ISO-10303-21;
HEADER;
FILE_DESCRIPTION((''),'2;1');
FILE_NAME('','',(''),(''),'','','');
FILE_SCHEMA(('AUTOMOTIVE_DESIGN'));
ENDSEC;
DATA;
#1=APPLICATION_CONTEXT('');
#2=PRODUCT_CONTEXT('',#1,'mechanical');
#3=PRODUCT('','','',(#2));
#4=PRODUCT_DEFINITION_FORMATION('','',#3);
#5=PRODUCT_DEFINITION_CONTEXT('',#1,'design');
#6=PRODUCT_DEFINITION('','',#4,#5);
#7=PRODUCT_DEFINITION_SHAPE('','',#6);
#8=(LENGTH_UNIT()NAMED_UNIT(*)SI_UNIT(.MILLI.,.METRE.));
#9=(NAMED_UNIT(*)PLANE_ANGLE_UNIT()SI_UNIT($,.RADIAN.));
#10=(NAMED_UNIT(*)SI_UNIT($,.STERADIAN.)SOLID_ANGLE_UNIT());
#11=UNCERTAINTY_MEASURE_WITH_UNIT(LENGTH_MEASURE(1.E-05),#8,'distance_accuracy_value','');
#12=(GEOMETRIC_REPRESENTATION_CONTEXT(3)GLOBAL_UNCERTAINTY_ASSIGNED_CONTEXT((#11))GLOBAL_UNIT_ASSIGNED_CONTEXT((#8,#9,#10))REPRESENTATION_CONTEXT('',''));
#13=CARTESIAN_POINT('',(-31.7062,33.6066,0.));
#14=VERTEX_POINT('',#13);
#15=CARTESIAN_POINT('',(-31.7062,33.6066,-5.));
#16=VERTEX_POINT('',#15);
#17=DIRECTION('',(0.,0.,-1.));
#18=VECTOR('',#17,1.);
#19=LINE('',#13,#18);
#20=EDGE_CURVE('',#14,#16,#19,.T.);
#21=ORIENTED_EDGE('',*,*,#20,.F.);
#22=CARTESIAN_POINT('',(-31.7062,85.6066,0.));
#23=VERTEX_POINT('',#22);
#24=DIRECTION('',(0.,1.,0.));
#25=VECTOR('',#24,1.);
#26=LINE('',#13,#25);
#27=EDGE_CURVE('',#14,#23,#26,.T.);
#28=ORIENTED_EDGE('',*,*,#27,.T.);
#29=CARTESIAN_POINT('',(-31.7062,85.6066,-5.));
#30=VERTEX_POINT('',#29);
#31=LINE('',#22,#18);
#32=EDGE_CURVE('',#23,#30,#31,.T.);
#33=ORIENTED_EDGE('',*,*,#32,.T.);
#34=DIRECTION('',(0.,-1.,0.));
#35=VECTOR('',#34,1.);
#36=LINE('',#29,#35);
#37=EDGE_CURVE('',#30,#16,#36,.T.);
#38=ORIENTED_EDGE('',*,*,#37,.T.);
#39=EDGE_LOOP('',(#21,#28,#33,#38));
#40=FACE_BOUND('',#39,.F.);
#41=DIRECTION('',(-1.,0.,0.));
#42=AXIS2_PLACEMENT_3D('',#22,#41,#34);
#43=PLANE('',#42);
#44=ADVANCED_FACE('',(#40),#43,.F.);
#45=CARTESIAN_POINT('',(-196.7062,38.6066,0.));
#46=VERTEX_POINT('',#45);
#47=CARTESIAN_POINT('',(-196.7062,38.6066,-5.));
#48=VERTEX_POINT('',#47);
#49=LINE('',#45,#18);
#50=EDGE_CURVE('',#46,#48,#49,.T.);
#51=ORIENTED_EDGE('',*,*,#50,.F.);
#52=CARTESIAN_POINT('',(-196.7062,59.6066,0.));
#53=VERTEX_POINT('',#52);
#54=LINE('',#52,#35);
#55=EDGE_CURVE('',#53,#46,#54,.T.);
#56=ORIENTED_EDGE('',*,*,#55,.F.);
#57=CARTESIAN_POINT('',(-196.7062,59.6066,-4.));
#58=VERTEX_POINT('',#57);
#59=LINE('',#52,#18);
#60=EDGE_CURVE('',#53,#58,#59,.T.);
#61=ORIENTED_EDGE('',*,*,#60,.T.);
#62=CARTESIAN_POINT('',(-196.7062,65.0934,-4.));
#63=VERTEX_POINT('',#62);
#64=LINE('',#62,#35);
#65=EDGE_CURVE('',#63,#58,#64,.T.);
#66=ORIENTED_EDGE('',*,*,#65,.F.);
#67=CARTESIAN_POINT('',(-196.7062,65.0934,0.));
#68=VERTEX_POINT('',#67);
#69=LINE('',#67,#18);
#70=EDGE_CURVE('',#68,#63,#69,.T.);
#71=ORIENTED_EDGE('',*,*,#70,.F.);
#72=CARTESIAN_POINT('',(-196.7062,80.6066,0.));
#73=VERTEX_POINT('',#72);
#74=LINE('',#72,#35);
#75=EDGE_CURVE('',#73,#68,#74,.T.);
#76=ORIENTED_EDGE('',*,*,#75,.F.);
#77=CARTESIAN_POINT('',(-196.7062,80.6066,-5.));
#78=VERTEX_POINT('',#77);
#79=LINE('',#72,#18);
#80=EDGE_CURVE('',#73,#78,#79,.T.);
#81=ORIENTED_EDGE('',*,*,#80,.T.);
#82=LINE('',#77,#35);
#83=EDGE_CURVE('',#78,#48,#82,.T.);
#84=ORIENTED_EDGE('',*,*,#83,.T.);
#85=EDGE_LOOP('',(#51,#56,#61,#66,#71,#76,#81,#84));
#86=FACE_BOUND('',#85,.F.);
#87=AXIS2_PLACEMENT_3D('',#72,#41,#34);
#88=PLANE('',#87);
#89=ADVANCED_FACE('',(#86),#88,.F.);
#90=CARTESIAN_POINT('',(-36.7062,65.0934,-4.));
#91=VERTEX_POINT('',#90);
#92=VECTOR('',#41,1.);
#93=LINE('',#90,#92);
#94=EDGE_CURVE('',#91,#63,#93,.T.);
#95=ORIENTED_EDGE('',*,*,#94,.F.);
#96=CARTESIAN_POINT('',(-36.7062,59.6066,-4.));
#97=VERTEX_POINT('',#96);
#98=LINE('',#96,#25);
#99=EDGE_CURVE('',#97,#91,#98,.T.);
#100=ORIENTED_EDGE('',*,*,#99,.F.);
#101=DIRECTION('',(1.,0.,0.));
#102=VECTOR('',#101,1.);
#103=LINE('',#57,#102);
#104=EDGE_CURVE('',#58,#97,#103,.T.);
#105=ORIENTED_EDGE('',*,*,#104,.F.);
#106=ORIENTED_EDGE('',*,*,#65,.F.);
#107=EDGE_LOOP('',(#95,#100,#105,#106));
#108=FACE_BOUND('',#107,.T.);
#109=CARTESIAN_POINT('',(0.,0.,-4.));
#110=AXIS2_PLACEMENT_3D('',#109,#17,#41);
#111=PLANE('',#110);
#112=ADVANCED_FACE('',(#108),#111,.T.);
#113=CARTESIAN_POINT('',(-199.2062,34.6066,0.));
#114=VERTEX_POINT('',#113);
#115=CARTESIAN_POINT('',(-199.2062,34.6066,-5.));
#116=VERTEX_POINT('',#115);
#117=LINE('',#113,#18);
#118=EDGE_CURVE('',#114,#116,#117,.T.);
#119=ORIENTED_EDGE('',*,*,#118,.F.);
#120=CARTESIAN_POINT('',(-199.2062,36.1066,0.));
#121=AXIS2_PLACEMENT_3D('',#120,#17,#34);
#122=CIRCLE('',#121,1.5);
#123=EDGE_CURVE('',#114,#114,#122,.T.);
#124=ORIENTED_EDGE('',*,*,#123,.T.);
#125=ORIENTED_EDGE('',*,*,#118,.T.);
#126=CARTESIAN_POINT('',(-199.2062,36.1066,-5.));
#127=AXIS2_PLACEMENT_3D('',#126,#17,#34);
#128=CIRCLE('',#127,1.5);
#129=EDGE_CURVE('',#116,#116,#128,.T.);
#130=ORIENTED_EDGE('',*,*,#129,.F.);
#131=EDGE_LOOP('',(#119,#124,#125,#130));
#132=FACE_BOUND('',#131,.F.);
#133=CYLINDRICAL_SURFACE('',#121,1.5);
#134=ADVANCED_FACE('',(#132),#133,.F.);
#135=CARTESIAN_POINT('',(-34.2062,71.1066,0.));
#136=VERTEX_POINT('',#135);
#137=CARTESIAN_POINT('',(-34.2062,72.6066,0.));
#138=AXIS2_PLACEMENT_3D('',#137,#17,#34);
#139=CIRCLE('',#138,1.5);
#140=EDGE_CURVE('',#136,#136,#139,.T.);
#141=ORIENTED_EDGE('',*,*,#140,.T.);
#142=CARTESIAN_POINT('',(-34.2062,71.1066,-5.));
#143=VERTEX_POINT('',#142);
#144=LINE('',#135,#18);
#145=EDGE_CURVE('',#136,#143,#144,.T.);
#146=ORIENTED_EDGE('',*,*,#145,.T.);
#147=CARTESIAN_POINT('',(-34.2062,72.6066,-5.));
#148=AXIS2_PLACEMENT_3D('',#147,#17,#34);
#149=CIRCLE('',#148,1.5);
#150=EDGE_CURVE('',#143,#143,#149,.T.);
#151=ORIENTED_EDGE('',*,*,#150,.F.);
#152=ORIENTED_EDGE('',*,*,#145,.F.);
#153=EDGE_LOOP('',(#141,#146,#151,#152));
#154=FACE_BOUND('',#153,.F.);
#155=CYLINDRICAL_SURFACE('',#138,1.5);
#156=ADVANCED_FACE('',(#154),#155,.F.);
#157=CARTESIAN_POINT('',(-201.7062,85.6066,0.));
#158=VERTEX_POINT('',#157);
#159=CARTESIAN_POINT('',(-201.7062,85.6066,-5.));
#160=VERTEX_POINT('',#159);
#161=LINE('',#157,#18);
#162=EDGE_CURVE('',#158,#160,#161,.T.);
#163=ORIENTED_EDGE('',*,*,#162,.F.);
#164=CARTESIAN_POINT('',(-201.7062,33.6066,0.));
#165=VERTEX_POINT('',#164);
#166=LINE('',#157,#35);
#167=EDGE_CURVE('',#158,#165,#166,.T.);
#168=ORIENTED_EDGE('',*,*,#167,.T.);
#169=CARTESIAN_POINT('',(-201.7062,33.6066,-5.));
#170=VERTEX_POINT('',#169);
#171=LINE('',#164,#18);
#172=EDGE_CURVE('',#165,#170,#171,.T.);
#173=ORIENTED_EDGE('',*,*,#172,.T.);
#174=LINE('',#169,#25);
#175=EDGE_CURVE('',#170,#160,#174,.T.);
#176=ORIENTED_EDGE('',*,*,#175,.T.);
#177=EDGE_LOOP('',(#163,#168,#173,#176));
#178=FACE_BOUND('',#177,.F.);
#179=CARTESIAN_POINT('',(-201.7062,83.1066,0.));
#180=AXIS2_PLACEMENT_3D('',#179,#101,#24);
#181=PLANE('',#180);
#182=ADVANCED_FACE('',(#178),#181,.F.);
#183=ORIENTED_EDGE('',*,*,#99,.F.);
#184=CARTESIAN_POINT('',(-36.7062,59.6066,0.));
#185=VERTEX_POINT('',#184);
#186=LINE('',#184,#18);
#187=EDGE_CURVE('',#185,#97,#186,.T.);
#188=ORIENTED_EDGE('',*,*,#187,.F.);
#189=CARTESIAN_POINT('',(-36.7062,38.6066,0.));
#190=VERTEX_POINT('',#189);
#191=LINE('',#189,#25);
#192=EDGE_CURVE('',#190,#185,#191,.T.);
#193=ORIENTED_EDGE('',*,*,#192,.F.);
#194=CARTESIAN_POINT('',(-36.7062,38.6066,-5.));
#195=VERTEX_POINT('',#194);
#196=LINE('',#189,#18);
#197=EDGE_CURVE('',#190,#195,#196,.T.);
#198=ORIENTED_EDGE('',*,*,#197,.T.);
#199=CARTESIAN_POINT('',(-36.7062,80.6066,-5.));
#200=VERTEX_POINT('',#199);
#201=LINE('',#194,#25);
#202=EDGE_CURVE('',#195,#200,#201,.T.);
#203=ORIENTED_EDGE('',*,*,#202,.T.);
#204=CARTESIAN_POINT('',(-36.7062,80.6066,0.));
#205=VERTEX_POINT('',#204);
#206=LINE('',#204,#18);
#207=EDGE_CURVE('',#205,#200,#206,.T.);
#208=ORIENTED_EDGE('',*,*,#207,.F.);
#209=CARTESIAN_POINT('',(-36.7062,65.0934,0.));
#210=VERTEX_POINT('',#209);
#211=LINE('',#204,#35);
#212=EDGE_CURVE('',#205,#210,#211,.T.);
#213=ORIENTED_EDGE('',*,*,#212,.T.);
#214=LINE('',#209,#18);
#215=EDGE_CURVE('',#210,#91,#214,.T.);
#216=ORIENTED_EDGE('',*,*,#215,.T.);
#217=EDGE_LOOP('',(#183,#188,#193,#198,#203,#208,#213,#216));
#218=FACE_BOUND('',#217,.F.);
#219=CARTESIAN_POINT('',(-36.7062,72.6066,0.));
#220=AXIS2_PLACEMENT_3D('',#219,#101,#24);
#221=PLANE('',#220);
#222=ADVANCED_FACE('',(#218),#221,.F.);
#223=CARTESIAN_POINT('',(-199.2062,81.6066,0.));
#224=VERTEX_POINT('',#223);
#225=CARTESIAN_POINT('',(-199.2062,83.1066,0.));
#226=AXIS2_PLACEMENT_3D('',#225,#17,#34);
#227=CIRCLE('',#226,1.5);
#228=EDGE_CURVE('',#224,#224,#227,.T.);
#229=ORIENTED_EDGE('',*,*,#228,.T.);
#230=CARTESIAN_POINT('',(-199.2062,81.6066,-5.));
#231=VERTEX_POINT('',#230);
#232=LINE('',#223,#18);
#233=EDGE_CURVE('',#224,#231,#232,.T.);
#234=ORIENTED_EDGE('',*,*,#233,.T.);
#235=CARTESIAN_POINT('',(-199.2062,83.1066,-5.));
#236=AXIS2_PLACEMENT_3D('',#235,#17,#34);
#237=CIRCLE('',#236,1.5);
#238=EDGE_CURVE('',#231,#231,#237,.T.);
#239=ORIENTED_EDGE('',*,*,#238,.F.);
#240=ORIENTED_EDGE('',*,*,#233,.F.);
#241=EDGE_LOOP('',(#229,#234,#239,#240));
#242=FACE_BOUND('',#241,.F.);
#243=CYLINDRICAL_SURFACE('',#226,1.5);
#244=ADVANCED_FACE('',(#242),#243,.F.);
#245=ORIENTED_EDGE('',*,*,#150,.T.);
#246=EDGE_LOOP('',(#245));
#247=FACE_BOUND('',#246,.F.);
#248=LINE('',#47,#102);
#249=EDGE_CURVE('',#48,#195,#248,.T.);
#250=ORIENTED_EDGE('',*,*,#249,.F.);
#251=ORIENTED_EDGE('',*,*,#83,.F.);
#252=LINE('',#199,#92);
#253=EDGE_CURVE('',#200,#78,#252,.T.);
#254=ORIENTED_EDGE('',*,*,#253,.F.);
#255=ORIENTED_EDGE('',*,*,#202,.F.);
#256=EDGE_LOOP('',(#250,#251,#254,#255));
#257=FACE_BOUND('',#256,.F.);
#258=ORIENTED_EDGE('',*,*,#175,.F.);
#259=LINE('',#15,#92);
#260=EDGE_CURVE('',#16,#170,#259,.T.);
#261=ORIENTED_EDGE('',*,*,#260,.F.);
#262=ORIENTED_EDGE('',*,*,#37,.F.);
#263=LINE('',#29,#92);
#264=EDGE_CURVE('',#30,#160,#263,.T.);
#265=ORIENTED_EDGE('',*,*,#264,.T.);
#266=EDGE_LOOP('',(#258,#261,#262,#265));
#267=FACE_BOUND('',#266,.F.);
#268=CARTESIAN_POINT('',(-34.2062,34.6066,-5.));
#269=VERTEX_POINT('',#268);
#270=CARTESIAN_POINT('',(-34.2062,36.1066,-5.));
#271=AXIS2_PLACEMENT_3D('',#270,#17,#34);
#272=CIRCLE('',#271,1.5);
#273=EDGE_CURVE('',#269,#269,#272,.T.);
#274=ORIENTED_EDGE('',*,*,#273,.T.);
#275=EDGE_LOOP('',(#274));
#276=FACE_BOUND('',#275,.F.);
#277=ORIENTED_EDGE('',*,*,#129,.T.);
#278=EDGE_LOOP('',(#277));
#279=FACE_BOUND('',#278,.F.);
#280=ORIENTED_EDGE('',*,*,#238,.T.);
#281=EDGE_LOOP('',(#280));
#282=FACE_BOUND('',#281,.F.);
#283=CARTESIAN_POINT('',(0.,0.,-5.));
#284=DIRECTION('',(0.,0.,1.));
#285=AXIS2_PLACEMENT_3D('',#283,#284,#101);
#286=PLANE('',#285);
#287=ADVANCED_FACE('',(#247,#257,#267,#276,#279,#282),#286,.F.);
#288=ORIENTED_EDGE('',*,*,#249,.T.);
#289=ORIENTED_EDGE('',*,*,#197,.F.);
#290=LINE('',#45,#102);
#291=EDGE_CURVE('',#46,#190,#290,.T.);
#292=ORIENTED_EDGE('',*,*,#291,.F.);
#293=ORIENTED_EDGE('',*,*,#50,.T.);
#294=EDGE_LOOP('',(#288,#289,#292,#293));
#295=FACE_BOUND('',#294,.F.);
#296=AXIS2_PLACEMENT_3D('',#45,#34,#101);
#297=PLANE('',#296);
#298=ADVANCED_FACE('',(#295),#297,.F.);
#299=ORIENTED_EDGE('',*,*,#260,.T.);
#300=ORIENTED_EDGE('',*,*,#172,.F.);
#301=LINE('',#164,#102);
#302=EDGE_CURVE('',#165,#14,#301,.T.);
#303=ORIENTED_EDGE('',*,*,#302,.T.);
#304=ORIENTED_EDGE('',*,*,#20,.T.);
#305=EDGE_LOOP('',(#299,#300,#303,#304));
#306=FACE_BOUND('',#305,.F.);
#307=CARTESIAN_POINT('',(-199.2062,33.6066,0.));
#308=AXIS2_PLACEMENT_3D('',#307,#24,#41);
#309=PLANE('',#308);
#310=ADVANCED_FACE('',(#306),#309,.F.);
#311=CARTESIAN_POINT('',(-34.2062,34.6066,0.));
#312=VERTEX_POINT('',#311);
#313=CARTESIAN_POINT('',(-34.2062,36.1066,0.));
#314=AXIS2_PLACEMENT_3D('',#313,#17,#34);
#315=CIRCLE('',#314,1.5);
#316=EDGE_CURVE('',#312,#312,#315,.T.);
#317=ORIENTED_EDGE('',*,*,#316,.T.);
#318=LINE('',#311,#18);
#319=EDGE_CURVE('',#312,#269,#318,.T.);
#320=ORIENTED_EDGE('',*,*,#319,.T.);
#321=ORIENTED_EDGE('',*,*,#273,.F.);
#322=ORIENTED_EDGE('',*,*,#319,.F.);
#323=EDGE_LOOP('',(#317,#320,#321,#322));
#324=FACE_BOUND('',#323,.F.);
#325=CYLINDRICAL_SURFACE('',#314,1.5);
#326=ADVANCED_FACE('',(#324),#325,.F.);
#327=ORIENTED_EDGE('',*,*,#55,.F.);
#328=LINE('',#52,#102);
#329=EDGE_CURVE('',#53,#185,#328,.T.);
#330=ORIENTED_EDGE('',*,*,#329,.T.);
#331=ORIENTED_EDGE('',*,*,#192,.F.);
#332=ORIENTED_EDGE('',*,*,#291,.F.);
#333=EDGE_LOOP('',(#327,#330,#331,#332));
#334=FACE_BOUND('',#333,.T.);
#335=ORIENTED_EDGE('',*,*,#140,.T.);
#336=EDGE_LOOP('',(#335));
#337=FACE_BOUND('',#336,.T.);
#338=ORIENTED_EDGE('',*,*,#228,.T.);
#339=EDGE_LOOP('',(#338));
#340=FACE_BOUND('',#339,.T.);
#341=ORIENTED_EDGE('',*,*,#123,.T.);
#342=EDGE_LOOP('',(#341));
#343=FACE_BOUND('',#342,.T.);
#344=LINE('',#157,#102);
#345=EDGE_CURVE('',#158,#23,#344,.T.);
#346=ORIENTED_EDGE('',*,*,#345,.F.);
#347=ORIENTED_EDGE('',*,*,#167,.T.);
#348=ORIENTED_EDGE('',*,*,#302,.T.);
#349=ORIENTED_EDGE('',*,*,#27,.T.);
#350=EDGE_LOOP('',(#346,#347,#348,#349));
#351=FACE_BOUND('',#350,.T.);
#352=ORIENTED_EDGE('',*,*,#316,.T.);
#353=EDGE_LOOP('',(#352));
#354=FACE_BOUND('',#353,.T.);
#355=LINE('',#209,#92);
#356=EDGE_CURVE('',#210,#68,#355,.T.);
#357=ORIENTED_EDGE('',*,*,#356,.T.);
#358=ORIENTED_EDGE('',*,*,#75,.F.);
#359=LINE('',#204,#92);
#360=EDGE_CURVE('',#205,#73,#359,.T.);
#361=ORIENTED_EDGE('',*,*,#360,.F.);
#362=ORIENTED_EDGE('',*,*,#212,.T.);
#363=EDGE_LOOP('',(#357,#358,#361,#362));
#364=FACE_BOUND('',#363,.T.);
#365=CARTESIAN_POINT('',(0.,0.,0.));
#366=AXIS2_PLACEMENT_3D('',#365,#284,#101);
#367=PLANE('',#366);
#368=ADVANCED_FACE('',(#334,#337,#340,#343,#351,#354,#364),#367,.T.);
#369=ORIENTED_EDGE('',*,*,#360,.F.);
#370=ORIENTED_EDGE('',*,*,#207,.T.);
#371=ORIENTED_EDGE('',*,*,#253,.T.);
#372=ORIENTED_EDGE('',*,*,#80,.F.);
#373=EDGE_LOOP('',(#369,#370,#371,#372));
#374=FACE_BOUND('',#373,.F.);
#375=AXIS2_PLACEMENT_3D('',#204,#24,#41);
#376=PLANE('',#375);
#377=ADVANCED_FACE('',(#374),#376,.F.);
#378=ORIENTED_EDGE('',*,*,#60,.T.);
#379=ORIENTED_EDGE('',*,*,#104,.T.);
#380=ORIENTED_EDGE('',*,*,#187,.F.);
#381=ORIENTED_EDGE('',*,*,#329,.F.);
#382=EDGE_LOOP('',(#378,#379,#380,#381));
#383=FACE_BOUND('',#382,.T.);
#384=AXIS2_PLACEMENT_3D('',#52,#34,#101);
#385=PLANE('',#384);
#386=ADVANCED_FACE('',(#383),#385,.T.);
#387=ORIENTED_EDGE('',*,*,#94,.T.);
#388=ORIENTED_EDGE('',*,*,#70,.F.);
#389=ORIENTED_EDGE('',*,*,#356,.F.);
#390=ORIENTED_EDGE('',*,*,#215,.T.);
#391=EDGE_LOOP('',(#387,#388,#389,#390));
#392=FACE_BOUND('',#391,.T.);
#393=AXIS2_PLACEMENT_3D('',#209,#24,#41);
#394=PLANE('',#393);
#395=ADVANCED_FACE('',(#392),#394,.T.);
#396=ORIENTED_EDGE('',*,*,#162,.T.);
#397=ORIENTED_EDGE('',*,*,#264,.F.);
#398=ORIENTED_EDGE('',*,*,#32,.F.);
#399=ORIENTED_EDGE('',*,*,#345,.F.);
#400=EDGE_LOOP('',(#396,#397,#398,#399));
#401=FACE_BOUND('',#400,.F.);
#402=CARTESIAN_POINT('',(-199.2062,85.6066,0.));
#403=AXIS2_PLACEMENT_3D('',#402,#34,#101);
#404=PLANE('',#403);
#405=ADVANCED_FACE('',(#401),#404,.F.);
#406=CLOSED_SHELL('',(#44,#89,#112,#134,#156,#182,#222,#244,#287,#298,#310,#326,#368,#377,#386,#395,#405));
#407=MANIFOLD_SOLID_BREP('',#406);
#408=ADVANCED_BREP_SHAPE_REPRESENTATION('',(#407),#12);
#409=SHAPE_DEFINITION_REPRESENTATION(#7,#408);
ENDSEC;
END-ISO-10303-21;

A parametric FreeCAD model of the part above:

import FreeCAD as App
import Part
import Sketcher

V = App.Vector


def add_polygon(sketch, points):
    """Adds a closed chain of lines whose ends are joined by coincident constraints."""
    first, n = sketch.GeometryCount, len(points)
    for a, b in zip(points, points[1:] + points[:1]):
        sketch.addGeometry(Part.LineSegment(App.Vector(*a, 0), App.Vector(*b, 0)), False)
    for i in range(n):
        sketch.addConstraint(Sketcher.Constraint("Coincident", first + i, 2, first + (i + 1) % n, 1))

doc = App.newDocument("Part")
body = doc.addObject("PartDesign::Body", "Body")

# Sketch on XY plane
sketch1 = body.newObject("Sketcher::SketchObject", "Sketch")
sketch1.AttachmentSupport = (doc.getObject("XY_Plane"), [""])
sketch1.MapMode = "FlatFace"
add_polygon(sketch1, [(-202, 86), (-202, 34), (-32, 34), (-32, 86)])  # lines 0-3
add_polygon(sketch1, [(-197, 81), (-37, 81), (-37, 65), (-197, 65)])  # lines 4-7
add_polygon(sketch1, [(-37, 60), (-37, 39), (-197, 39), (-197, 60)])  # lines 8-11
sketch1.addConstraint([
    Sketcher.Constraint("Vertical", 0),
    Sketcher.Constraint("Horizontal", 1),
    Sketcher.Constraint("Vertical", 2),
    Sketcher.Constraint("Horizontal", 3),
    Sketcher.Constraint("Horizontal", 4),
    Sketcher.Constraint("Vertical", 5),
    Sketcher.Constraint("Horizontal", 6),
    Sketcher.Constraint("Vertical", 7),
    Sketcher.Constraint("Vertical", 8),
    Sketcher.Constraint("Horizontal", 9),
    Sketcher.Constraint("Vertical", 10),
    Sketcher.Constraint("Horizontal", 11),
    Sketcher.Constraint("Vertical", 5, 2, 8, 2),
    Sketcher.Constraint("Vertical", 7, 2, 9, 2),
    Sketcher.Constraint("DistanceX", 1, 1, 1, 2, 170.0),
    Sketcher.Constraint("DistanceX", 4, 1, 4, 2, 160.0),
    Sketcher.Constraint("DistanceY", 0, 2, 0, 1, 52.0),
    Sketcher.Constraint("DistanceY", 8, 2, 8, 1, 21.0),
    Sketcher.Constraint("DistanceX", 4, 2, 2, 2, 5.0),
    Sketcher.Constraint("DistanceY", 4, 2, 2, 2, 5.0),
    Sketcher.Constraint("DistanceY", 1, 2, 8, 2, 5.0),
    Sketcher.Constraint("DistanceY", 5, 2, 5, 1, 15.5132),
    Sketcher.Constraint("DistanceX", 0, 2, -1, 1, 201.7062),
    Sketcher.Constraint("DistanceY", -1, 1, 0, 2, 33.6066),
])
pad1 = body.newObject("PartDesign::Pad", "Pad")
pad1.Profile = sketch1
pad1.Length = 5
pad1.Reversed = True

# Sketch on XY plane
sketch2 = body.newObject("Sketcher::SketchObject", "Sketch001")
sketch2.AttachmentSupport = (doc.getObject("XY_Plane"), [""])
sketch2.MapMode = "FlatFace"
sketch2.AttachmentOffset = App.Placement(V(0, 0, -5), App.Rotation())
add_polygon(sketch2, [(-197, 65), (-37, 65), (-37, 60), (-197, 60)])  # lines 0-3
sketch2.addConstraint([
    Sketcher.Constraint("Horizontal", 0),
    Sketcher.Constraint("Vertical", 1),
    Sketcher.Constraint("Horizontal", 2),
    Sketcher.Constraint("Vertical", 3),
    Sketcher.Constraint("DistanceX", 0, 1, 0, 2, 160.0),
    Sketcher.Constraint("DistanceY", 1, 2, 1, 1, 5.4868),
    Sketcher.Constraint("DistanceX", 0, 2, -1, 1, 36.7062),
    Sketcher.Constraint("DistanceY", -1, 1, 0, 2, 65.0934),
])
pocket1 = body.newObject("PartDesign::Pocket", "Pocket")
pocket1.Profile = sketch2
pocket1.Length = 1
pocket1.Reversed = True

# Sketch on XY plane
sketch3 = body.newObject("Sketcher::SketchObject", "Sketch002")
sketch3.AttachmentSupport = (doc.getObject("XY_Plane"), [""])
sketch3.MapMode = "FlatFace"
sketch3.addGeometry(Part.Circle(V(-199.2, 83.1, 0), V(0, 0, 1), 1.5), False)
sketch3.addConstraint([
    Sketcher.Constraint("Diameter", 0, 3.0),
    Sketcher.Constraint("DistanceX", 0, 3, -1, 1, 199.2062),
    Sketcher.Constraint("DistanceY", -1, 1, 0, 3, 83.1066),
])
doc.recompute()
hole = body.newObject("PartDesign::Hole", "Hole")
hole.Profile = sketch3
hole.ThreadType = "None"
hole.Diameter = 3
hole.DepthType = "Dimension"
hole.Depth = 5
hole.DrillPoint = "Angled"
hole.DrillPointAngle = 118

# Sketch on XY plane
sketch4 = body.newObject("Sketcher::SketchObject", "Sketch003")
sketch4.AttachmentSupport = (doc.getObject("XY_Plane"), [""])
sketch4.MapMode = "FlatFace"
sketch4.addGeometry(Part.Circle(V(-199.2, 36.1, 0), V(0, 0, 1), 1.5), False)
sketch4.addConstraint([
    Sketcher.Constraint("Diameter", 0, 3.0),
    Sketcher.Constraint("DistanceX", 0, 3, -1, 1, 199.2062),
    Sketcher.Constraint("DistanceY", -1, 1, 0, 3, 36.1066),
])
doc.recompute()
hole2 = body.newObject("PartDesign::Hole", "Hole001")
hole2.Profile = sketch4
hole2.ThreadType = "None"
hole2.Diameter = 3
hole2.DepthType = "Dimension"
hole2.Depth = 5
hole2.DrillPoint = "Angled"
hole2.DrillPointAngle = 118

# Sketch on XY plane
sketch5 = body.newObject("Sketcher::SketchObject", "Sketch004")
sketch5.AttachmentSupport = (doc.getObject("XY_Plane"), [""])
sketch5.MapMode = "FlatFace"
sketch5.addGeometry(Part.Circle(V(-34.2, 36.1, 0), V(0, 0, 1), 1.5), False)
sketch5.addConstraint([
    Sketcher.Constraint("Diameter", 0, 3.0),
    Sketcher.Constraint("DistanceX", 0, 3, -1, 1, 34.2062),
    Sketcher.Constraint("DistanceY", -1, 1, 0, 3, 36.1066),
])
doc.recompute()
hole3 = body.newObject("PartDesign::Hole", "Hole002")
hole3.Profile = sketch5
hole3.ThreadType = "None"
hole3.Diameter = 3
hole3.DepthType = "Dimension"
hole3.Depth = 5
hole3.DrillPoint = "Angled"
hole3.DrillPointAngle = 118

# Sketch on XY plane
sketch6 = body.newObject("Sketcher::SketchObject", "Sketch005")
sketch6.AttachmentSupport = (doc.getObject("XY_Plane"), [""])
sketch6.MapMode = "FlatFace"
sketch6.addGeometry(Part.Circle(V(-34.2, 72.6, 0), V(0, 0, 1), 1.5), False)
sketch6.addConstraint([
    Sketcher.Constraint("Diameter", 0, 3.0),
    Sketcher.Constraint("DistanceX", 0, 3, -1, 1, 34.2062),
    Sketcher.Constraint("DistanceY", -1, 1, 0, 3, 72.6066),
])
doc.recompute()
hole4 = body.newObject("PartDesign::Hole", "Hole003")
hole4.Profile = sketch6
hole4.ThreadType = "None"
hole4.Diameter = 3
hole4.DepthType = "Dimension"
hole4.Depth = 5
hole4.DrillPoint = "Angled"
hole4.DrillPointAngle = 118

doc.recompute()
